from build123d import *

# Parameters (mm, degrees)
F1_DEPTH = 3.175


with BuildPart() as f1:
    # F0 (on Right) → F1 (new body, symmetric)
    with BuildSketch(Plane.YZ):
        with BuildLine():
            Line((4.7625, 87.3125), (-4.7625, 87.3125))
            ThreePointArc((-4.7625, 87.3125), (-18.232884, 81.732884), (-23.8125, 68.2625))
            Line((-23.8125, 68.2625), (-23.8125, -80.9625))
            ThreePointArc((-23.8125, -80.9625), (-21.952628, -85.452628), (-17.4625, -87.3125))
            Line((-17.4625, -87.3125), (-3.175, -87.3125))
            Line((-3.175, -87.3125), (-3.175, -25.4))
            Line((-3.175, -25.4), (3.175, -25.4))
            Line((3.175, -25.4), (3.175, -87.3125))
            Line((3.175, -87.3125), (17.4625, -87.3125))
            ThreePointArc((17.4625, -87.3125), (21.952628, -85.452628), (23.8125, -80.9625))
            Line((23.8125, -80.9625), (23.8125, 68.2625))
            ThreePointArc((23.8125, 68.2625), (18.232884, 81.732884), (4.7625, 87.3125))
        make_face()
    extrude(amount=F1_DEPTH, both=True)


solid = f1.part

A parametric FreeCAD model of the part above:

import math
import FreeCAD as App
import Part
import Sketcher
from FreeCAD import Vector
Q = App.Units.Quantity

doc = App.newDocument("Part")
params = doc.addObject("Spreadsheet::Sheet", "Params")
for row, (alias, value) in enumerate([
    ("sketch1_radius", "0.75 in"),
    ("sketch1_radius2", "0.25 in"),
    ("sketch1_width", "0.25 in"),
    ("sketch1_width2", "0.375 in"),
    ("sketch1_height", "5.875 in"),
    ("pad1_length", "0.25 in"),
], start=1):
    params.set(f"A{row}", alias)
    params.set(f"B{row}", "=" + value)
    params.setAlias(f"B{row}", alias)

body = doc.addObject("PartDesign::Body", "Body")

# Sketch on YZ plane
sketch1 = body.newObject("Sketcher::SketchObject", "Sketch")
sketch1.AttachmentSupport = (doc.getObject("YZ_Plane"), [""])
sketch1.MapMode = "FlatFace"
sketch1.addGeometry([
    Part.LineSegment(Vector(5, 87, 0), Vector(-5, 87, 0)),  # 0
    Part.ArcOfCircle(Part.Circle(Vector(-5, 68, 0), Vector(0, 0, 1), 19), math.radians(90), math.radians(180)),  # 1
    Part.LineSegment(Vector(-24, 68, 0), Vector(-24, -81, 0)),  # 2
    Part.ArcOfCircle(Part.Circle(Vector(-17, -81, 0), Vector(0, 0, 1), 6), math.radians(-180), math.radians(-90)),  # 3
    Part.LineSegment(Vector(-17, -87, 0), Vector(-3, -87, 0)),  # 4
    Part.LineSegment(Vector(-3, -87, 0), Vector(-3, -25, 0)),  # 5
    Part.LineSegment(Vector(-3, -25, 0), Vector(3, -25, 0)),  # 6
    Part.LineSegment(Vector(3, -25, 0), Vector(3, -87, 0)),  # 7
    Part.LineSegment(Vector(3, -87, 0), Vector(17, -87, 0)),  # 8
    Part.ArcOfCircle(Part.Circle(Vector(17, -81, 0), Vector(0, 0, 1), 6), math.radians(-90), math.radians(0)),  # 9
    Part.LineSegment(Vector(24, -81, 0), Vector(24, 68, 0)),  # 10
    Part.ArcOfCircle(Part.Circle(Vector(5, 68, 0), Vector(0, 0, 1), 19), math.radians(0), math.radians(90)),  # 11
], False)
sketch1.addConstraint([
    Sketcher.Constraint("Tangent", 0, 2, 1, 1),
    Sketcher.Constraint("Tangent", 1, 2, 2, 1),
    Sketcher.Constraint("Tangent", 2, 2, 3, 1),
    Sketcher.Constraint("Tangent", 3, 2, 4, 1),
    Sketcher.Constraint("Coincident", 4, 2, 5, 1),
    Sketcher.Constraint("Coincident", 5, 2, 6, 1),
    Sketcher.Constraint("Coincident", 6, 2, 7, 1),
    Sketcher.Constraint("Coincident", 7, 2, 8, 1),
    Sketcher.Constraint("Tangent", 8, 2, 9, 1),
    Sketcher.Constraint("Tangent", 9, 2, 10, 1),
    Sketcher.Constraint("Tangent", 10, 2, 11, 1),
    Sketcher.Constraint("Tangent", 11, 2, 0, 1),
    Sketcher.Constraint("Horizontal", 0),
    Sketcher.Constraint("Vertical", 2),
    Sketcher.Constraint("Horizontal", 4),
    Sketcher.Constraint("Vertical", 5),
    Sketcher.Constraint("Horizontal", 6),
    Sketcher.Constraint("Vertical", 7),
    Sketcher.Constraint("Horizontal", 8),
    Sketcher.Constraint("Vertical", 10),
    Sketcher.Constraint("Equal", 3, 9),
    Sketcher.Constraint("Equal", 1, 11),
    Sketcher.Constraint("Symmetric", 3, 3, 9, 3, -2),
    Sketcher.Constraint("Equal", 4, 8),
    Sketcher.Constraint("Radius", 1, Q("0.75 in")),
    Sketcher.Constraint("Radius", 3, Q("0.25 in")),
    Sketcher.Constraint("DistanceY", 5, 2, -1, 1, Q("1 in")),
    Sketcher.Constraint("DistanceX", 6, 1, 6, 2, Q("0.25 in")),
    Sketcher.Constraint("DistanceX", 0, 2, 0, 1, Q("0.375 in")),
    Sketcher.Constraint("DistanceY", 2, 2, 2, 1, Q("5.875 in")),
    Sketcher.Constraint("DistanceY", 5, 1, 5, 2, Q("2.4375 in")),
])
sketch1.setExpression("Constraints[24]", "Params.sketch1_radius")
sketch1.setExpression("Constraints[25]", "Params.sketch1_radius2")
sketch1.setExpression("Constraints[27]", "Params.sketch1_width")
sketch1.setExpression("Constraints[28]", "Params.sketch1_width2")
sketch1.setExpression("Constraints[29]", "Params.sketch1_height")
pad1 = body.newObject("PartDesign::Pad", "Pad")
pad1.Profile = sketch1
pad1.setExpression("Length", "Params.pad1_length")
pad1.Midplane = True

doc.recompute()
